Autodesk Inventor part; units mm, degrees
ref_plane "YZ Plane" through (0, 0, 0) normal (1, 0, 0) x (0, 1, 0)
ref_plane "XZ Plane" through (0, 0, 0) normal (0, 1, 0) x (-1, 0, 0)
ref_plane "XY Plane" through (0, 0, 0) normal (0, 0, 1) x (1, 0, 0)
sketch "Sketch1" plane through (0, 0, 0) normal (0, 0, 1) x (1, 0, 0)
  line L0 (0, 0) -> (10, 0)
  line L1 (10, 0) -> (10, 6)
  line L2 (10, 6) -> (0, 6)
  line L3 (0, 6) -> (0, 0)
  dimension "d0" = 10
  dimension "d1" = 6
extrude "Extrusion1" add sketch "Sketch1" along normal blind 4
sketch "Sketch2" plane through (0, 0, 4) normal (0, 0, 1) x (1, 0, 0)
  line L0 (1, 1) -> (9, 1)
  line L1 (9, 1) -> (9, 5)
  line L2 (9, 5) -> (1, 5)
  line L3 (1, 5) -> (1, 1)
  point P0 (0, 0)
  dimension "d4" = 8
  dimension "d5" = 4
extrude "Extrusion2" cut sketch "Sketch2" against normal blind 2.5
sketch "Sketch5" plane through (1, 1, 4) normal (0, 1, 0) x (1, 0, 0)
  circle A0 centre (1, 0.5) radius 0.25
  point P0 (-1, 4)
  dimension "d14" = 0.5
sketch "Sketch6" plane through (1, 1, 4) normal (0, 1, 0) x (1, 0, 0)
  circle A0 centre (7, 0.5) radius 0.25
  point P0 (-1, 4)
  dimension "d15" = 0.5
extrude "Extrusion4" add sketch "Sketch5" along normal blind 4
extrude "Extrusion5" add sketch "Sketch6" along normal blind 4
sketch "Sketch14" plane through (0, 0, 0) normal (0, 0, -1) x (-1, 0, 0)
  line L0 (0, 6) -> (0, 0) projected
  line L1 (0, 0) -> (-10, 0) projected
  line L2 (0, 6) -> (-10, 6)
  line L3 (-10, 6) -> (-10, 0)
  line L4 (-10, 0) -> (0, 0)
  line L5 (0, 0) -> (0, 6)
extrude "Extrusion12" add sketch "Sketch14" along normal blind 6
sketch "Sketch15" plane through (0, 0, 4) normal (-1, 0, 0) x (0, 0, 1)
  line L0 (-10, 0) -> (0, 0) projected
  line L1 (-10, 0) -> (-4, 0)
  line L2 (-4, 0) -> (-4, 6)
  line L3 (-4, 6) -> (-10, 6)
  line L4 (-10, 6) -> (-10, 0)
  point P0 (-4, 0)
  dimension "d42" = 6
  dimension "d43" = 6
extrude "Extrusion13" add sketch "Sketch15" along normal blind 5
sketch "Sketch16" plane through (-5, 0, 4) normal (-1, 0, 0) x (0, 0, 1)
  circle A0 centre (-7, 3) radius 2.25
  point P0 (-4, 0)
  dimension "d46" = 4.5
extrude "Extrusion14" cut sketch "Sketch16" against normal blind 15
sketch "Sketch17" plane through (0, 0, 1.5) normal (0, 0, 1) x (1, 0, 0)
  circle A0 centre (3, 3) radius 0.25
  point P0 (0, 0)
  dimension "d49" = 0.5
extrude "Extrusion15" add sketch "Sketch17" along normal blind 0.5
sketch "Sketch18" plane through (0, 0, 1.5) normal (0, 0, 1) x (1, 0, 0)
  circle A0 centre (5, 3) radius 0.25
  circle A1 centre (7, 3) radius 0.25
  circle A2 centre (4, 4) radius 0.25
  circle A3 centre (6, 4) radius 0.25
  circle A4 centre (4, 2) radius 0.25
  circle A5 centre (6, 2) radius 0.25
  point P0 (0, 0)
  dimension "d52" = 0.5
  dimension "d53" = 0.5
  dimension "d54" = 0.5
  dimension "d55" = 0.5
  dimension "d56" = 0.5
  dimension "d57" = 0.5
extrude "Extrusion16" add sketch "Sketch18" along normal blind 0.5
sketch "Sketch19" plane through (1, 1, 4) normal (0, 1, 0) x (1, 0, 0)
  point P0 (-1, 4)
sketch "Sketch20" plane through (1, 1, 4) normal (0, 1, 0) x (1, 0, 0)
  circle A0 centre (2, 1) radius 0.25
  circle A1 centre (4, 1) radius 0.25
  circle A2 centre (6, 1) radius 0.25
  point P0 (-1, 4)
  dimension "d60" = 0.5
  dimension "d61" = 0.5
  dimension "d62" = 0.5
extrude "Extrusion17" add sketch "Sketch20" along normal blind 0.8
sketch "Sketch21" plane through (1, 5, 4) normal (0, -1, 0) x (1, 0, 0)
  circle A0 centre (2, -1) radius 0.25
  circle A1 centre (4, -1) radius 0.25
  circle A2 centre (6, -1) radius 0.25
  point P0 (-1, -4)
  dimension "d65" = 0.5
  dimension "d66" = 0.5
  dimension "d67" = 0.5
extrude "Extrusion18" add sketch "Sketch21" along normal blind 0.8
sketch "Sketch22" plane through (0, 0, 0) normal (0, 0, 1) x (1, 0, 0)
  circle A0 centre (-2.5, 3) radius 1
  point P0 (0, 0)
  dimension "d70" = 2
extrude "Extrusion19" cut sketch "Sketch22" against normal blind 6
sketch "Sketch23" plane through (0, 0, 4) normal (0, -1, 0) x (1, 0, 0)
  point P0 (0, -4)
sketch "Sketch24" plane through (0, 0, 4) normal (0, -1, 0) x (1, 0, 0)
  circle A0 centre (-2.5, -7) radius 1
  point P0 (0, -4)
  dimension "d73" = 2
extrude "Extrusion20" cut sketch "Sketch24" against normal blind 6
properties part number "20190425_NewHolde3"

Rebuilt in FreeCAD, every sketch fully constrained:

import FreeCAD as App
import Part
import Sketcher
from FreeCAD import Vector
Q = App.Units.Quantity


def add_polygon(sketch, points):
    """Adds a closed chain of lines whose ends are joined by coincident constraints."""
    first, n = sketch.GeometryCount, len(points)
    for a, b in zip(points, points[1:] + points[:1]):
        sketch.addGeometry(Part.LineSegment(App.Vector(*a, 0), App.Vector(*b, 0)), False)
    for i in range(n):
        sketch.addConstraint(Sketcher.Constraint("Coincident", first + i, 2, first + (i + 1) % n, 1))

doc = App.newDocument("Part")
body = doc.addObject("PartDesign::Body", "Body")

# Sketch on XY plane
sketch1 = doc.addObject("Sketcher::SketchObject", "Sketch")
body.addObject(sketch1)
sketch1.AttachmentSupport = (doc.XY_Plane, [""])
sketch1.MapMode = "FlatFace"
add_polygon(sketch1, [(0, 6), (0, 0), (10, 0), (10, 6)])  # lines 0-3
sketch1.addConstraint([
    Sketcher.Constraint("Vertical", 0),
    Sketcher.Constraint("Horizontal", 1),
    Sketcher.Constraint("Vertical", 2),
    Sketcher.Constraint("Horizontal", 3),
    Sketcher.Constraint("Coincident", 0, 2, -1, 1),
    Sketcher.Constraint("DistanceX", 1, 1, 1, 2, Q("10 mm")),
    Sketcher.Constraint("DistanceY", 0, 2, 0, 1, Q("6 mm")),
])
pad1 = doc.addObject("PartDesign::Pad", "Pad")
body.addObject(pad1)
pad1.Profile = sketch1
pad1.Length = 4

# Sketch on XY plane
sketch2 = doc.addObject("Sketcher::SketchObject", "Sketch001")
body.addObject(sketch2)
sketch2.AttachmentSupport = (doc.XY_Plane, [""])
sketch2.MapMode = "FlatFace"
sketch2.AttachmentOffset = App.Placement(Vector(0, 0, 4), App.Rotation())
add_polygon(sketch2, [(1, 5), (1, 1), (9, 1), (9, 5)])  # lines 0-3
sketch2.addConstraint([
    Sketcher.Constraint("Vertical", 0),
    Sketcher.Constraint("Horizontal", 1),
    Sketcher.Constraint("Vertical", 2),
    Sketcher.Constraint("Horizontal", 3),
    Sketcher.Constraint("DistanceX", 1, 1, 1, 2, Q("8 mm")),
    Sketcher.Constraint("DistanceY", 0, 2, 0, 1, Q("4 mm")),
    Sketcher.Constraint("DistanceX", -1, 1, 0, 2, Q("1 mm")),
    Sketcher.Constraint("DistanceY", -1, 1, 0, 2, Q("1 mm")),
])
pocket1 = doc.addObject("PartDesign::Pocket", "Pocket")
body.addObject(pocket1)
pocket1.Profile = sketch2
pocket1.Length = 2.5

# Sketch on XZ plane
sketch3 = doc.addObject("Sketcher::SketchObject", "Sketch002")
body.addObject(sketch3)
sketch3.AttachmentSupport = (doc.XZ_Plane, [""])
sketch3.MapMode = "FlatFace"
sketch3.AttachmentOffset = App.Placement(Vector(0, 0, -1), App.Rotation())
sketch3.addGeometry(Part.Circle(Vector(2, 3.5, 0), Vector(0, 0, 1), 0.25), False)
sketch3.addConstraint([
    Sketcher.Constraint("Diameter", 0, Q("0.5 mm")),
    Sketcher.Constraint("DistanceX", -1, 1, 0, 3, Q("2 mm")),
    Sketcher.Constraint("DistanceY", -1, 1, 0, 3, Q("3.5 mm")),
])
pad2 = doc.addObject("PartDesign::Pad", "Pad001")
body.addObject(pad2)
pad2.Profile = sketch3
pad2.Length = 4
pad2.Reversed = True

# Sketch on XZ plane
sketch4 = doc.addObject("Sketcher::SketchObject", "Sketch003")
body.addObject(sketch4)
sketch4.AttachmentSupport = (doc.XZ_Plane, [""])
sketch4.MapMode = "FlatFace"
sketch4.AttachmentOffset = App.Placement(Vector(0, 0, -1), App.Rotation())
sketch4.addGeometry(Part.Circle(Vector(8, 3.5, 0), Vector(0, 0, 1), 0.25), False)
sketch4.addConstraint([
    Sketcher.Constraint("Diameter", 0, Q("0.5 mm")),
    Sketcher.Constraint("DistanceX", -1, 1, 0, 3, Q("8 mm")),
    Sketcher.Constraint("DistanceY", -1, 1, 0, 3, Q("3.5 mm")),
])
pad3 = doc.addObject("PartDesign::Pad", "Pad002")
body.addObject(pad3)
pad3.Profile = sketch4
pad3.Length = 4
pad3.Reversed = True

# Sketch on XY plane
sketch5 = doc.addObject("Sketcher::SketchObject", "Sketch004")
body.addObject(sketch5)
sketch5.AttachmentSupport = (doc.XY_Plane, [""])
sketch5.MapMode = "FlatFace"
add_polygon(sketch5, [(0, 0), (0, 6), (10, 6), (10, 0)])  # lines 0-3
sketch5.addConstraint([
    Sketcher.Constraint("Vertical", 0),
    Sketcher.Constraint("Horizontal", 1),
    Sketcher.Constraint("Vertical", 2),
    Sketcher.Constraint("Horizontal", 3),
    Sketcher.Constraint("Coincident", 3, 2, -1, 1),
    Sketcher.Constraint("DistanceX", 1, 1, 1, 2, Q("10 mm")),
    Sketcher.Constraint("DistanceY", 0, 1, 0, 2, Q("6 mm")),
])
pad4 = doc.addObject("PartDesign::Pad", "Pad003")
body.addObject(pad4)
pad4.Profile = sketch5
pad4.Length = 6
pad4.Reversed = True

# Sketch on YZ plane
sketch6 = doc.addObject("Sketcher::SketchObject", "Sketch005")
body.addObject(sketch6)
sketch6.AttachmentSupport = (doc.YZ_Plane, [""])
sketch6.MapMode = "FlatFace"
add_polygon(sketch6, [(6, -6), (0, -6), (0, 0), (6, 0)])  # lines 0-3
sketch6.addConstraint([
    Sketcher.Constraint("Horizontal", 0),
    Sketcher.Constraint("Vertical", 1),
    Sketcher.Constraint("Horizontal", 2),
    Sketcher.Constraint("Vertical", 3),
    Sketcher.Constraint("Coincident", 1, 2, -1, 1),
    Sketcher.Constraint("Equal", 2, 1),
    Sketcher.Constraint("DistanceX", 0, 2, 0, 1, Q("6 mm")),
])
pad5 = doc.addObject("PartDesign::Pad", "Pad004")
body.addObject(pad5)
pad5.Profile = sketch6
pad5.Length = 5
pad5.Reversed = True

# Sketch on YZ plane
sketch7 = doc.addObject("Sketcher::SketchObject", "Sketch006")
body.addObject(sketch7)
sketch7.AttachmentSupport = (doc.YZ_Plane, [""])
sketch7.MapMode = "FlatFace"
sketch7.AttachmentOffset = App.Placement(Vector(0, 0, -5), App.Rotation())
sketch7.addGeometry(Part.Circle(Vector(3, -3, 0), Vector(0, 0, 1), 2.2), False)
sketch7.addConstraint([
    Sketcher.Constraint("Diameter", 0, Q("4.5 mm")),
    Sketcher.Constraint("DistanceX", -1, 1, 0, 3, Q("3 mm")),
    Sketcher.Constraint("DistanceY", 0, 3, -1, 1, Q("3 mm")),
])
pocket2 = doc.addObject("PartDesign::Pocket", "Pocket001")
body.addObject(pocket2)
pocket2.Profile = sketch7
pocket2.Length = 15
pocket2.Reversed = True

# Sketch on XY plane
sketch8 = doc.addObject("Sketcher::SketchObject", "Sketch007")
body.addObject(sketch8)
sketch8.AttachmentSupport = (doc.XY_Plane, [""])
sketch8.MapMode = "FlatFace"
sketch8.AttachmentOffset = App.Placement(Vector(0, 0, 1.5), App.Rotation())
sketch8.addGeometry(Part.Circle(Vector(3, 3, 0), Vector(0, 0, 1), 0.25), False)
sketch8.addConstraint([
    Sketcher.Constraint("Diameter", 0, Q("0.5 mm")),
    Sketcher.Constraint("DistanceX", -1, 1, 0, 3, Q("3 mm")),
    Sketcher.Constraint("DistanceY", -1, 1, 0, 3, Q("3 mm")),
])
pad6 = doc.addObject("PartDesign::Pad", "Pad005")
body.addObject(pad6)
pad6.Profile = sketch8
pad6.Length = 0.5

# Sketch on XY plane
sketch9 = doc.addObject("Sketcher::SketchObject", "Sketch008")
body.addObject(sketch9)
sketch9.AttachmentSupport = (doc.XY_Plane, [""])
sketch9.MapMode = "FlatFace"
sketch9.AttachmentOffset = App.Placement(Vector(0, 0, 1.5), App.Rotation())
sketch9.addGeometry([
    Part.Circle(Vector(5, 3, 0), Vector(0, 0, 1), 0.25),  # 0
    Part.Circle(Vector(7, 3, 0), Vector(0, 0, 1), 0.25),  # 1
    Part.Circle(Vector(4, 4, 0), Vector(0, 0, 1), 0.25),  # 2
    Part.Circle(Vector(6, 4, 0), Vector(0, 0, 1), 0.25),  # 3
    Part.Circle(Vector(4, 2, 0), Vector(0, 0, 1), 0.25),  # 4
    Part.Circle(Vector(6, 2, 0), Vector(0, 0, 1), 0.25),  # 5
], False)
sketch9.addConstraint([
    Sketcher.Constraint("Equal", 0, 1),
    Sketcher.Constraint("Equal", 1, 2),
    Sketcher.Constraint("Equal", 2, 3),
    Sketcher.Constraint("Equal", 3, 4),
    Sketcher.Constraint("Equal", 4, 5),
    Sketcher.Constraint("Horizontal", 0, 3, 1, 3),
    Sketcher.Constraint("Horizontal", 2, 3, 3, 3),
    Sketcher.Constraint("Horizontal", 4, 3, 5, 3),
    Sketcher.Constraint("Vertical", 2, 3, 4, 3),
    Sketcher.Constraint("Vertical", 3, 3, 5, 3),
    Sketcher.Constraint("Diameter", 0, Q("0.5 mm")),
    Sketcher.Constraint("DistanceX", -1, 1, 0, 3, Q("5 mm")),
    Sketcher.Constraint("DistanceY", -1, 1, 0, 3, Q("3 mm")),
    Sketcher.Constraint("DistanceX", -1, 1, 1, 3, Q("7 mm")),
    Sketcher.Constraint("DistanceX", -1, 1, 2, 3, Q("4 mm")),
    Sketcher.Constraint("DistanceY", -1, 1, 2, 3, Q("4 mm")),
    Sketcher.Constraint("DistanceX", -1, 1, 3, 3, Q("6 mm")),
    Sketcher.Constraint("DistanceY", -1, 1, 4, 3, Q("2 mm")),
])
pad7 = doc.addObject("PartDesign::Pad", "Pad006")
body.addObject(pad7)
pad7.Profile = sketch9
pad7.Length = 0.5

# Sketch on XZ plane
sketch10 = doc.addObject("Sketcher::SketchObject", "Sketch009")
body.addObject(sketch10)
sketch10.AttachmentSupport = (doc.XZ_Plane, [""])
sketch10.MapMode = "FlatFace"
sketch10.AttachmentOffset = App.Placement(Vector(0, 0, -1), App.Rotation())
sketch10.addGeometry([
    Part.Circle(Vector(3, 3, 0), Vector(0, 0, 1), 0.25),
    Part.Circle(Vector(5, 3, 0), Vector(0, 0, 1), 0.25),
    Part.Circle(Vector(7, 3, 0), Vector(0, 0, 1), 0.25),
], False)
sketch10.addConstraint([
    Sketcher.Constraint("Equal", 0, 1),
    Sketcher.Constraint("Equal", 1, 2),
    Sketcher.Constraint("Horizontal", 0, 3, 1, 3),
    Sketcher.Constraint("Horizontal", 1, 3, 2, 3),
    Sketcher.Constraint("Diameter", 0, Q("0.5 mm")),
    Sketcher.Constraint("DistanceX", -1, 1, 0, 3, Q("3 mm")),
    Sketcher.Constraint("DistanceY", -1, 1, 0, 3, Q("3 mm")),
    Sketcher.Constraint("DistanceX", -1, 1, 1, 3, Q("5 mm")),
    Sketcher.Constraint("DistanceX", -1, 1, 2, 3, Q("7 mm")),
])
pad8 = doc.addObject("PartDesign::Pad", "Pad007")
body.addObject(pad8)
pad8.Profile = sketch10
pad8.Length = 0.8
pad8.Reversed = True

# Sketch on XZ plane
sketch11 = doc.addObject("Sketcher::SketchObject", "Sketch010")
body.addObject(sketch11)
sketch11.AttachmentSupport = (doc.XZ_Plane, [""])
sketch11.MapMode = "FlatFace"
sketch11.AttachmentOffset = App.Placement(Vector(0, 0, -5), App.Rotation())
sketch11.addGeometry([
    Part.Circle(Vector(3, 3, 0), Vector(0, 0, 1), 0.25),
    Part.Circle(Vector(5, 3, 0), Vector(0, 0, 1), 0.25),
    Part.Circle(Vector(7, 3, 0), Vector(0, 0, 1), 0.25),
], False)
sketch11.addConstraint([
    Sketcher.Constraint("Equal", 0, 1),
    Sketcher.Constraint("Equal", 1, 2),
    Sketcher.Constraint("Horizontal", 0, 3, 1, 3),
    Sketcher.Constraint("Horizontal", 1, 3, 2, 3),
    Sketcher.Constraint("Diameter", 0, Q("0.5 mm")),
    Sketcher.Constraint("DistanceX", -1, 1, 0, 3, Q("3 mm")),
    Sketcher.Constraint("DistanceY", -1, 1, 0, 3, Q("3 mm")),
    Sketcher.Constraint("DistanceX", -1, 1, 1, 3, Q("5 mm")),
    Sketcher.Constraint("DistanceX", -1, 1, 2, 3, Q("7 mm")),
])
pad9 = doc.addObject("PartDesign::Pad", "Pad008")
body.addObject(pad9)
pad9.Profile = sketch11
pad9.Length = 0.8

# Sketch on XY plane
sketch12 = doc.addObject("Sketcher::SketchObject", "Sketch011")
body.addObject(sketch12)
sketch12.AttachmentSupport = (doc.XY_Plane, [""])
sketch12.MapMode = "FlatFace"
sketch12.addGeometry(Part.Circle(Vector(-2.5, 3, 0), Vector(0, 0, 1), 1), False)
sketch12.addConstraint([
    Sketcher.Constraint("Diameter", 0, Q("2 mm")),
    Sketcher.Constraint("DistanceY", -1, 1, 0, 3, Q("3 mm")),
    Sketcher.Constraint("DistanceX", 0, 3, -1, 1, Q("2.5 mm")),
])
pocket3 = doc.addObject("PartDesign::Pocket", "Pocket002")
body.addObject(pocket3)
pocket3.Profile = sketch12
pocket3.Length = 6

# Sketch on XZ plane
sketch13 = doc.addObject("Sketcher::SketchObject", "Sketch012")
body.addObject(sketch13)
sketch13.AttachmentSupport = (doc.XZ_Plane, [""])
sketch13.MapMode = "FlatFace"
sketch13.addGeometry(Part.Circle(Vector(-2.5, -3, 0), Vector(0, 0, 1), 1), False)
sketch13.addConstraint([
    Sketcher.Constraint("Diameter", 0, Q("2 mm")),
    Sketcher.Constraint("DistanceY", 0, 3, -1, 1, Q("3 mm")),
    Sketcher.Constraint("DistanceX", 0, 3, -1, 1, Q("2.5 mm")),
])
pocket4 = doc.addObject("PartDesign::Pocket", "Pocket003")
body.addObject(pocket4)
pocket4.Profile = sketch13
pocket4.Length = 6

doc.recompute()
